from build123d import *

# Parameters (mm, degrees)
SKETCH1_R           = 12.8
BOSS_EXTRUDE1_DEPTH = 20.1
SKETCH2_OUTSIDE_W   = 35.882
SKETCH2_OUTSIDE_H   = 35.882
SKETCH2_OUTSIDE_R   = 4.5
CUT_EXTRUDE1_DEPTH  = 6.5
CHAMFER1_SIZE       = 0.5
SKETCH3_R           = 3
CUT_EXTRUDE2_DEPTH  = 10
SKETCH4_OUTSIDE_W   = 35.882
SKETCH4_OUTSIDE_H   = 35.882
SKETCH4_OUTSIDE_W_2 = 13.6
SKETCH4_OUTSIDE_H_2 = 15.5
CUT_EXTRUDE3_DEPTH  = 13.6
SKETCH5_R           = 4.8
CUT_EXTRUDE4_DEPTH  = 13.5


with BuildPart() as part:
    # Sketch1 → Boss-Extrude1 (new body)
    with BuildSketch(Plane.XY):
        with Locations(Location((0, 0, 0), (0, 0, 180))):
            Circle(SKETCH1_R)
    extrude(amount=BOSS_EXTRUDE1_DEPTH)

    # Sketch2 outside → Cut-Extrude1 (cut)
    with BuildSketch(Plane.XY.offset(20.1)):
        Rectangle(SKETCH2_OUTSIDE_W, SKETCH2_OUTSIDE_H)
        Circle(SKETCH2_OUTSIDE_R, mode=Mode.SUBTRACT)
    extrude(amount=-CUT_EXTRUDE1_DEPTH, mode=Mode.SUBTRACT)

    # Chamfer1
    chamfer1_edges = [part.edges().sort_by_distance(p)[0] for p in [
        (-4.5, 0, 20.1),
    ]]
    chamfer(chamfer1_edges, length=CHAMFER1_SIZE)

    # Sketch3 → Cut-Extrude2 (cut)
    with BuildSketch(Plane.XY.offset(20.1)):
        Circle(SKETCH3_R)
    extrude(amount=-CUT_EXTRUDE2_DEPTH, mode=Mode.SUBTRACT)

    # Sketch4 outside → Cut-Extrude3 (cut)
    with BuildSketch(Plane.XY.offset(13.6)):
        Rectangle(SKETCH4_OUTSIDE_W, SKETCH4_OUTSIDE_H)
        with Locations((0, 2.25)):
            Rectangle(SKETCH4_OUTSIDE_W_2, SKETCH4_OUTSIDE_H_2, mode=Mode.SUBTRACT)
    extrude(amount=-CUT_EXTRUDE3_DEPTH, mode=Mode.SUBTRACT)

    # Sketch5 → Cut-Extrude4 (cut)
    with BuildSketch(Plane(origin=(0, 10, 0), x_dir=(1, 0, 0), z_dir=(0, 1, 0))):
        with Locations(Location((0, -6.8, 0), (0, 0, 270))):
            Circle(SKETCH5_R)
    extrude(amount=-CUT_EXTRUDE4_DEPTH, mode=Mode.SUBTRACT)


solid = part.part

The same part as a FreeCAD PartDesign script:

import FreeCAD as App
import Part
import Sketcher
Q = App.Units.Quantity


def edges_at(feature, points):
    """Names of the edges that pass closest to the given points."""
    edges = feature.Shape.Edges
    near = lambda p: min(range(len(edges)), key=lambda i: edges[i].distToShape(Part.Vertex(*p))[0])
    return sorted({f"Edge{near(p) + 1}" for p in points})

doc = App.newDocument("Part")
body = doc.addObject("PartDesign::Body", "Body")

sketch1 = doc.addObject("Sketcher::SketchObject", "Sketch")
body.addObject(sketch1)
sketch1.AttachmentSupport = (doc.XY_Plane, [""])
sketch1.MapMode = "FlatFace"
sketch1.addGeometry(Part.Circle(App.Vector(0, 0, 0), App.Vector(0, 0, 1), 13), False)
sketch1.addConstraint(Sketcher.Constraint("Coincident", 0, 3, -1, 1))
sketch1.addConstraint(Sketcher.Constraint("Diameter", 0, Q("25.6 mm")))
pad1 = doc.addObject("PartDesign::Pad", "Pad")
body.addObject(pad1)
pad1.Profile = sketch1
pad1.Length = 20.1

sketch2 = doc.addObject("Sketcher::SketchObject", "Sketch001")
body.addObject(sketch2)
sketch2.AttachmentSupport = (doc.XY_Plane, [""])
sketch2.MapMode = "FlatFace"
sketch2.AttachmentOffset = App.Placement(App.Vector(0, 0, 20.1), App.Rotation())
sketch2.addGeometry(Part.LineSegment(App.Vector(-17.9, 17.9, 0), App.Vector(-17.9, -17.9, 0)), False)
sketch2.addGeometry(Part.LineSegment(App.Vector(-17.9, -17.9, 0), App.Vector(17.9, -17.9, 0)), False)
sketch2.addGeometry(Part.LineSegment(App.Vector(17.9, -17.9, 0), App.Vector(17.9, 17.9, 0)), False)
sketch2.addGeometry(Part.LineSegment(App.Vector(17.9, 17.9, 0), App.Vector(-17.9, 17.9, 0)), False)
sketch2.addGeometry(Part.Circle(App.Vector(0, 0, 0), App.Vector(0, 0, 1), 4.5), False)
sketch2.addConstraint(Sketcher.Constraint("Coincident", 0, 2, 1, 1))
sketch2.addConstraint(Sketcher.Constraint("Coincident", 1, 2, 2, 1))
sketch2.addConstraint(Sketcher.Constraint("Coincident", 2, 2, 3, 1))
sketch2.addConstraint(Sketcher.Constraint("Coincident", 3, 2, 0, 1))
sketch2.addConstraint(Sketcher.Constraint("Vertical", 0))
sketch2.addConstraint(Sketcher.Constraint("Horizontal", 1))
sketch2.addConstraint(Sketcher.Constraint("Vertical", 2))
sketch2.addConstraint(Sketcher.Constraint("Horizontal", 3))
sketch2.addConstraint(Sketcher.Constraint("Coincident", 4, 3, -1, 1))
sketch2.addConstraint(Sketcher.Constraint("Symmetric", 0, 2, 2, 2, -1, 1))
sketch2.addConstraint(Sketcher.Constraint("Equal", 3, 0))
sketch2.addConstraint(Sketcher.Constraint("Diameter", 4, Q("9 mm")))
sketch2.addConstraint(Sketcher.Constraint("DistanceX", 1, 1, 1, 2, Q("35.882 mm")))
pocket1 = doc.addObject("PartDesign::Pocket", "Pocket")
body.addObject(pocket1)
pocket1.Profile = sketch2
pocket1.Length = 6.5
doc.recompute()

chamfer = doc.addObject("PartDesign::Chamfer", "Chamfer")
body.addObject(chamfer)
chamfer.Base = (pocket1, edges_at(pocket1, [(-4.5, 0, 20.1)]))
chamfer.Size = 0.5

sketch3 = doc.addObject("Sketcher::SketchObject", "Sketch002")
body.addObject(sketch3)
sketch3.AttachmentSupport = (doc.XY_Plane, [""])
sketch3.MapMode = "FlatFace"
sketch3.AttachmentOffset = App.Placement(App.Vector(0, 0, 20.1), App.Rotation())
sketch3.addGeometry(Part.Circle(App.Vector(0, 0, 0), App.Vector(0, 0, 1), 3), False)
sketch3.addConstraint(Sketcher.Constraint("Coincident", 0, 3, -1, 1))
sketch3.addConstraint(Sketcher.Constraint("Diameter", 0, Q("6 mm")))
pocket2 = doc.addObject("PartDesign::Pocket", "Pocket001")
body.addObject(pocket2)
pocket2.Profile = sketch3
pocket2.Length = 10

sketch4 = doc.addObject("Sketcher::SketchObject", "Sketch003")
body.addObject(sketch4)
sketch4.AttachmentSupport = (doc.XY_Plane, [""])
sketch4.MapMode = "FlatFace"
sketch4.AttachmentOffset = App.Placement(App.Vector(0, 0, 13.6), App.Rotation())
sketch4.addGeometry(Part.LineSegment(App.Vector(-18, 18, 0), App.Vector(-18, -18, 0)), False)
sketch4.addGeometry(Part.LineSegment(App.Vector(-18, -18, 0), App.Vector(18, -18, 0)), False)
sketch4.addGeometry(Part.LineSegment(App.Vector(18, -18, 0), App.Vector(18, 18, 0)), False)
sketch4.addGeometry(Part.LineSegment(App.Vector(18, 18, 0), App.Vector(-18, 18, 0)), False)
sketch4.addGeometry(Part.LineSegment(App.Vector(7, -6, 0), App.Vector(-7, -6, 0)), False)
sketch4.addGeometry(Part.LineSegment(App.Vector(-7, -6, 0), App.Vector(-7, 10, 0)), False)
sketch4.addGeometry(Part.LineSegment(App.Vector(-7, 10, 0), App.Vector(7, 10, 0)), False)
sketch4.addGeometry(Part.LineSegment(App.Vector(7, 10, 0), App.Vector(7, -6, 0)), False)
sketch4.addConstraint(Sketcher.Constraint("Coincident", 0, 2, 1, 1))
sketch4.addConstraint(Sketcher.Constraint("Coincident", 1, 2, 2, 1))
sketch4.addConstraint(Sketcher.Constraint("Coincident", 2, 2, 3, 1))
sketch4.addConstraint(Sketcher.Constraint("Coincident", 3, 2, 0, 1))
sketch4.addConstraint(Sketcher.Constraint("Coincident", 4, 2, 5, 1))
sketch4.addConstraint(Sketcher.Constraint("Coincident", 5, 2, 6, 1))
sketch4.addConstraint(Sketcher.Constraint("Coincident", 6, 2, 7, 1))
sketch4.addConstraint(Sketcher.Constraint("Coincident", 7, 2, 4, 1))
sketch4.addConstraint(Sketcher.Constraint("Vertical", 0))
sketch4.addConstraint(Sketcher.Constraint("Horizontal", 1))
sketch4.addConstraint(Sketcher.Constraint("Vertical", 2))
sketch4.addConstraint(Sketcher.Constraint("Horizontal", 3))
sketch4.addConstraint(Sketcher.Constraint("Horizontal", 4))
sketch4.addConstraint(Sketcher.Constraint("Vertical", 5))
sketch4.addConstraint(Sketcher.Constraint("Horizontal", 6))
sketch4.addConstraint(Sketcher.Constraint("Vertical", 7))
sketch4.addConstraint(Sketcher.Constraint("Symmetric", 0, 2, 2, 2, -1, 1))
sketch4.addConstraint(Sketcher.Constraint("Equal", 3, 0))
sketch4.addConstraint(Sketcher.Constraint("DistanceX", 4, 2, 4, 1, Q("13.6 mm")))
sketch4.addConstraint(Sketcher.Constraint("DistanceY", 5, 1, 5, 2, Q("15.5 mm")))
sketch4.addConstraint(Sketcher.Constraint("DistanceY", -1, 1, 5, 2, Q("10 mm")))
sketch4.addConstraint(Sketcher.Constraint("DistanceX", 4, 2, -1, 1, Q("6.8 mm")))
sketch4.addConstraint(Sketcher.Constraint("DistanceX", 1, 1, 1, 2, Q("35.882 mm")))
pocket3 = doc.addObject("PartDesign::Pocket", "Pocket002")
body.addObject(pocket3)
pocket3.Profile = sketch4
pocket3.Length = 13.6

sketch5 = doc.addObject("Sketcher::SketchObject", "Sketch004")
body.addObject(sketch5)
sketch5.AttachmentSupport = (doc.XZ_Plane, [""])
sketch5.MapMode = "FlatFace"
sketch5.AttachmentOffset = App.Placement(App.Vector(0, 0, -10), App.Rotation())
sketch5.addGeometry(Part.Circle(App.Vector(0, 6.8, 0), App.Vector(0, 0, 1), 4.8), False)
sketch5.addConstraint(Sketcher.Constraint("PointOnObject", 0, 3, -2))
sketch5.addConstraint(Sketcher.Constraint("Diameter", 0, Q("9.6 mm")))
sketch5.addConstraint(Sketcher.Constraint("DistanceY", -1, 1, 0, 3, Q("6.8 mm")))
pocket4 = doc.addObject("PartDesign::Pocket", "Pocket003")
body.addObject(pocket4)
pocket4.Profile = sketch5
pocket4.Length = 13.5
pocket4.Reversed = True

doc.recompute()
